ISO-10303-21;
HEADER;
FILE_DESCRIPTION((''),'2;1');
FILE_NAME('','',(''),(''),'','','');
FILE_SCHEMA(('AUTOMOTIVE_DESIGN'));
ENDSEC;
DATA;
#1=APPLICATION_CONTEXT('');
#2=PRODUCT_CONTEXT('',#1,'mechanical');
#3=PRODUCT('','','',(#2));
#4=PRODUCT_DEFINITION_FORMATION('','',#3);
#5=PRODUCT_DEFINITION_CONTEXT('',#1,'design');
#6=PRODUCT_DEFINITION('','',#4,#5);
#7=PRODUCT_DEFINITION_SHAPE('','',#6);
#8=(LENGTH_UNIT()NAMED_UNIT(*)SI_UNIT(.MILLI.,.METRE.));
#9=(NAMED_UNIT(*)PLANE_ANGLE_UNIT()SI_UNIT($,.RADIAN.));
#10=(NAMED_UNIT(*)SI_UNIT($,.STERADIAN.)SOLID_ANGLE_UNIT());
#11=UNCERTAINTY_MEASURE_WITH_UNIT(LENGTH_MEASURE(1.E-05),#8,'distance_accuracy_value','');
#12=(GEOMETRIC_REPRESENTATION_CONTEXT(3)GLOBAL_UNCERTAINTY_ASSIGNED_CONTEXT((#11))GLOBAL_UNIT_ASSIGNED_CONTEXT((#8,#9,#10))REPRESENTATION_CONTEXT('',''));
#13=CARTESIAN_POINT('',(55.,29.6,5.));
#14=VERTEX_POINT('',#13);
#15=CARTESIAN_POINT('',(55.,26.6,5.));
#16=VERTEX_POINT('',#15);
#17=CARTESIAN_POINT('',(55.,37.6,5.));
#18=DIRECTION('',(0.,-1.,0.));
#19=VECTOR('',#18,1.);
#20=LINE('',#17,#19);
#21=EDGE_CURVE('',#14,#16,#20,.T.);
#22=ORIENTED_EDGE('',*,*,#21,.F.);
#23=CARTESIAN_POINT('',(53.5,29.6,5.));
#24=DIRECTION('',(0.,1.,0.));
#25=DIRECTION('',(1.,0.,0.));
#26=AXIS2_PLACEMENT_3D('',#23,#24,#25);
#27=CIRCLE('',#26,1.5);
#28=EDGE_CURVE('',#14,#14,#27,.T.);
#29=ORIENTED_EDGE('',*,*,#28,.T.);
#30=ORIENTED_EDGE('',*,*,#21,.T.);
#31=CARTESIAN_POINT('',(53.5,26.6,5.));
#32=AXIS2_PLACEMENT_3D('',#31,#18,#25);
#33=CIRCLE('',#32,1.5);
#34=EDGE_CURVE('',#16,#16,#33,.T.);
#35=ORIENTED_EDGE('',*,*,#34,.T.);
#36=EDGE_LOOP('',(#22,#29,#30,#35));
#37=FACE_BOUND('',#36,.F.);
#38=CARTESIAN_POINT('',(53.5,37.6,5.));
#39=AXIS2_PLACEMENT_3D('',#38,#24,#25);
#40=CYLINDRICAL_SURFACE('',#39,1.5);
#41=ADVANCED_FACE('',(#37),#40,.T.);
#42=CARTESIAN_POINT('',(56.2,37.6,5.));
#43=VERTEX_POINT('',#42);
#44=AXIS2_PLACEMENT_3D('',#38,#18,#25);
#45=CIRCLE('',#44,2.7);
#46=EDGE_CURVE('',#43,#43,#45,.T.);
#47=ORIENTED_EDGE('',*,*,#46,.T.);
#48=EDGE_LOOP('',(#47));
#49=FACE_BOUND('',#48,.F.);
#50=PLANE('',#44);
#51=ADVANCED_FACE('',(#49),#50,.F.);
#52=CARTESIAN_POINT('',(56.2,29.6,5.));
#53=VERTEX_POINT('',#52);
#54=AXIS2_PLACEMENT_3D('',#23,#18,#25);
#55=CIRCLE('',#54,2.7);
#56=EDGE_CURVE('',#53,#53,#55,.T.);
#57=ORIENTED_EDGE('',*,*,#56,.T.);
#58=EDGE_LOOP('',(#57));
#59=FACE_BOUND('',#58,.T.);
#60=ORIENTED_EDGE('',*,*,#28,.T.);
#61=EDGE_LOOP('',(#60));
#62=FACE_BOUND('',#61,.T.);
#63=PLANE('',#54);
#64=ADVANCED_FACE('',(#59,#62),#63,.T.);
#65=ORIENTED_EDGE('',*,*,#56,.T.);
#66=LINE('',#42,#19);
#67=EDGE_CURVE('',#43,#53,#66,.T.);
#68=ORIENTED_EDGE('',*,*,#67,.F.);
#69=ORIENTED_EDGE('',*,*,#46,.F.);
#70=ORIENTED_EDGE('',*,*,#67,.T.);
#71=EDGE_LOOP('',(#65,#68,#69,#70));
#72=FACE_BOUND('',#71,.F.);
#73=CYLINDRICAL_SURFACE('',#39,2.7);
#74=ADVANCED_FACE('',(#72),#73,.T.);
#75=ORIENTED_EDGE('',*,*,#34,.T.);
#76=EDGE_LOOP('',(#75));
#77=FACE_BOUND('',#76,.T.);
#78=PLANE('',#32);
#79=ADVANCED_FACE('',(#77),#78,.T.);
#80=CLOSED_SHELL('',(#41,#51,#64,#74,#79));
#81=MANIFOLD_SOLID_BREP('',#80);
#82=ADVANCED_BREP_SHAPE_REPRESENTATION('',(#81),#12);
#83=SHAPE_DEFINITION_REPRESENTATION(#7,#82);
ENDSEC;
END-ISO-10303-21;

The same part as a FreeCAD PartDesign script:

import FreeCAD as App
import Part
import Sketcher
from FreeCAD import Vector
Q = App.Units.Quantity

doc = App.newDocument("Part")
body = doc.addObject("PartDesign::Body", "Body")

# Sketch on XZ plane
sketch1 = body.newObject("Sketcher::SketchObject", "Sketch")
sketch1.AttachmentSupport = (doc.getObject("XZ_Plane"), [""])
sketch1.MapMode = "FlatFace"
sketch1.AttachmentOffset = App.Placement(Vector(0, 0, -37.6), App.Rotation())
sketch1.addGeometry(Part.Circle(Vector(53.5, 5, 0), Vector(0, 0, 1), 2.7), False)
sketch1.addConstraint([
    Sketcher.Constraint("Diameter", 0, Q("5.4 mm")),
    Sketcher.Constraint("DistanceY", -1, 1, 0, 3, Q("5 mm")),
    Sketcher.Constraint("DistanceX", -1, 1, 0, 3, Q("53.5 mm")),
])
pad1 = body.newObject("PartDesign::Pad", "Pad")
pad1.Profile = sketch1
pad1.Length = 8
body2 = doc.addObject("PartDesign::Body", "Body001")

# Sketch on XZ plane
sketch2 = body2.newObject("Sketcher::SketchObject", "Sketch001")
sketch2.AttachmentSupport = (doc.getObject("XZ_Plane001"), [""])
sketch2.MapMode = "FlatFace"
sketch2.AttachmentOffset = App.Placement(Vector(0, 0, -37.6), App.Rotation())
sketch2.addGeometry(Part.Circle(Vector(53.5, 5, 0), Vector(0, 0, 1), 1.5), False)
sketch2.addConstraint([
    Sketcher.Constraint("Diameter", 0, Q("3 mm")),
    Sketcher.Constraint("DistanceY", -1, 1, 0, 3, Q("5 mm")),
    Sketcher.Constraint("DistanceX", -1, 1, 0, 3, Q("53.5 mm")),
])
pad2 = body2.newObject("PartDesign::Pad", "Pad001")
pad2.Profile = sketch2
pad2.Length = 11
doc.recompute()

boolean = body2.newObject("PartDesign::Boolean", "Boolean")
boolean.Type = "Fuse"
boolean.addObjects([body])

doc.recompute()
